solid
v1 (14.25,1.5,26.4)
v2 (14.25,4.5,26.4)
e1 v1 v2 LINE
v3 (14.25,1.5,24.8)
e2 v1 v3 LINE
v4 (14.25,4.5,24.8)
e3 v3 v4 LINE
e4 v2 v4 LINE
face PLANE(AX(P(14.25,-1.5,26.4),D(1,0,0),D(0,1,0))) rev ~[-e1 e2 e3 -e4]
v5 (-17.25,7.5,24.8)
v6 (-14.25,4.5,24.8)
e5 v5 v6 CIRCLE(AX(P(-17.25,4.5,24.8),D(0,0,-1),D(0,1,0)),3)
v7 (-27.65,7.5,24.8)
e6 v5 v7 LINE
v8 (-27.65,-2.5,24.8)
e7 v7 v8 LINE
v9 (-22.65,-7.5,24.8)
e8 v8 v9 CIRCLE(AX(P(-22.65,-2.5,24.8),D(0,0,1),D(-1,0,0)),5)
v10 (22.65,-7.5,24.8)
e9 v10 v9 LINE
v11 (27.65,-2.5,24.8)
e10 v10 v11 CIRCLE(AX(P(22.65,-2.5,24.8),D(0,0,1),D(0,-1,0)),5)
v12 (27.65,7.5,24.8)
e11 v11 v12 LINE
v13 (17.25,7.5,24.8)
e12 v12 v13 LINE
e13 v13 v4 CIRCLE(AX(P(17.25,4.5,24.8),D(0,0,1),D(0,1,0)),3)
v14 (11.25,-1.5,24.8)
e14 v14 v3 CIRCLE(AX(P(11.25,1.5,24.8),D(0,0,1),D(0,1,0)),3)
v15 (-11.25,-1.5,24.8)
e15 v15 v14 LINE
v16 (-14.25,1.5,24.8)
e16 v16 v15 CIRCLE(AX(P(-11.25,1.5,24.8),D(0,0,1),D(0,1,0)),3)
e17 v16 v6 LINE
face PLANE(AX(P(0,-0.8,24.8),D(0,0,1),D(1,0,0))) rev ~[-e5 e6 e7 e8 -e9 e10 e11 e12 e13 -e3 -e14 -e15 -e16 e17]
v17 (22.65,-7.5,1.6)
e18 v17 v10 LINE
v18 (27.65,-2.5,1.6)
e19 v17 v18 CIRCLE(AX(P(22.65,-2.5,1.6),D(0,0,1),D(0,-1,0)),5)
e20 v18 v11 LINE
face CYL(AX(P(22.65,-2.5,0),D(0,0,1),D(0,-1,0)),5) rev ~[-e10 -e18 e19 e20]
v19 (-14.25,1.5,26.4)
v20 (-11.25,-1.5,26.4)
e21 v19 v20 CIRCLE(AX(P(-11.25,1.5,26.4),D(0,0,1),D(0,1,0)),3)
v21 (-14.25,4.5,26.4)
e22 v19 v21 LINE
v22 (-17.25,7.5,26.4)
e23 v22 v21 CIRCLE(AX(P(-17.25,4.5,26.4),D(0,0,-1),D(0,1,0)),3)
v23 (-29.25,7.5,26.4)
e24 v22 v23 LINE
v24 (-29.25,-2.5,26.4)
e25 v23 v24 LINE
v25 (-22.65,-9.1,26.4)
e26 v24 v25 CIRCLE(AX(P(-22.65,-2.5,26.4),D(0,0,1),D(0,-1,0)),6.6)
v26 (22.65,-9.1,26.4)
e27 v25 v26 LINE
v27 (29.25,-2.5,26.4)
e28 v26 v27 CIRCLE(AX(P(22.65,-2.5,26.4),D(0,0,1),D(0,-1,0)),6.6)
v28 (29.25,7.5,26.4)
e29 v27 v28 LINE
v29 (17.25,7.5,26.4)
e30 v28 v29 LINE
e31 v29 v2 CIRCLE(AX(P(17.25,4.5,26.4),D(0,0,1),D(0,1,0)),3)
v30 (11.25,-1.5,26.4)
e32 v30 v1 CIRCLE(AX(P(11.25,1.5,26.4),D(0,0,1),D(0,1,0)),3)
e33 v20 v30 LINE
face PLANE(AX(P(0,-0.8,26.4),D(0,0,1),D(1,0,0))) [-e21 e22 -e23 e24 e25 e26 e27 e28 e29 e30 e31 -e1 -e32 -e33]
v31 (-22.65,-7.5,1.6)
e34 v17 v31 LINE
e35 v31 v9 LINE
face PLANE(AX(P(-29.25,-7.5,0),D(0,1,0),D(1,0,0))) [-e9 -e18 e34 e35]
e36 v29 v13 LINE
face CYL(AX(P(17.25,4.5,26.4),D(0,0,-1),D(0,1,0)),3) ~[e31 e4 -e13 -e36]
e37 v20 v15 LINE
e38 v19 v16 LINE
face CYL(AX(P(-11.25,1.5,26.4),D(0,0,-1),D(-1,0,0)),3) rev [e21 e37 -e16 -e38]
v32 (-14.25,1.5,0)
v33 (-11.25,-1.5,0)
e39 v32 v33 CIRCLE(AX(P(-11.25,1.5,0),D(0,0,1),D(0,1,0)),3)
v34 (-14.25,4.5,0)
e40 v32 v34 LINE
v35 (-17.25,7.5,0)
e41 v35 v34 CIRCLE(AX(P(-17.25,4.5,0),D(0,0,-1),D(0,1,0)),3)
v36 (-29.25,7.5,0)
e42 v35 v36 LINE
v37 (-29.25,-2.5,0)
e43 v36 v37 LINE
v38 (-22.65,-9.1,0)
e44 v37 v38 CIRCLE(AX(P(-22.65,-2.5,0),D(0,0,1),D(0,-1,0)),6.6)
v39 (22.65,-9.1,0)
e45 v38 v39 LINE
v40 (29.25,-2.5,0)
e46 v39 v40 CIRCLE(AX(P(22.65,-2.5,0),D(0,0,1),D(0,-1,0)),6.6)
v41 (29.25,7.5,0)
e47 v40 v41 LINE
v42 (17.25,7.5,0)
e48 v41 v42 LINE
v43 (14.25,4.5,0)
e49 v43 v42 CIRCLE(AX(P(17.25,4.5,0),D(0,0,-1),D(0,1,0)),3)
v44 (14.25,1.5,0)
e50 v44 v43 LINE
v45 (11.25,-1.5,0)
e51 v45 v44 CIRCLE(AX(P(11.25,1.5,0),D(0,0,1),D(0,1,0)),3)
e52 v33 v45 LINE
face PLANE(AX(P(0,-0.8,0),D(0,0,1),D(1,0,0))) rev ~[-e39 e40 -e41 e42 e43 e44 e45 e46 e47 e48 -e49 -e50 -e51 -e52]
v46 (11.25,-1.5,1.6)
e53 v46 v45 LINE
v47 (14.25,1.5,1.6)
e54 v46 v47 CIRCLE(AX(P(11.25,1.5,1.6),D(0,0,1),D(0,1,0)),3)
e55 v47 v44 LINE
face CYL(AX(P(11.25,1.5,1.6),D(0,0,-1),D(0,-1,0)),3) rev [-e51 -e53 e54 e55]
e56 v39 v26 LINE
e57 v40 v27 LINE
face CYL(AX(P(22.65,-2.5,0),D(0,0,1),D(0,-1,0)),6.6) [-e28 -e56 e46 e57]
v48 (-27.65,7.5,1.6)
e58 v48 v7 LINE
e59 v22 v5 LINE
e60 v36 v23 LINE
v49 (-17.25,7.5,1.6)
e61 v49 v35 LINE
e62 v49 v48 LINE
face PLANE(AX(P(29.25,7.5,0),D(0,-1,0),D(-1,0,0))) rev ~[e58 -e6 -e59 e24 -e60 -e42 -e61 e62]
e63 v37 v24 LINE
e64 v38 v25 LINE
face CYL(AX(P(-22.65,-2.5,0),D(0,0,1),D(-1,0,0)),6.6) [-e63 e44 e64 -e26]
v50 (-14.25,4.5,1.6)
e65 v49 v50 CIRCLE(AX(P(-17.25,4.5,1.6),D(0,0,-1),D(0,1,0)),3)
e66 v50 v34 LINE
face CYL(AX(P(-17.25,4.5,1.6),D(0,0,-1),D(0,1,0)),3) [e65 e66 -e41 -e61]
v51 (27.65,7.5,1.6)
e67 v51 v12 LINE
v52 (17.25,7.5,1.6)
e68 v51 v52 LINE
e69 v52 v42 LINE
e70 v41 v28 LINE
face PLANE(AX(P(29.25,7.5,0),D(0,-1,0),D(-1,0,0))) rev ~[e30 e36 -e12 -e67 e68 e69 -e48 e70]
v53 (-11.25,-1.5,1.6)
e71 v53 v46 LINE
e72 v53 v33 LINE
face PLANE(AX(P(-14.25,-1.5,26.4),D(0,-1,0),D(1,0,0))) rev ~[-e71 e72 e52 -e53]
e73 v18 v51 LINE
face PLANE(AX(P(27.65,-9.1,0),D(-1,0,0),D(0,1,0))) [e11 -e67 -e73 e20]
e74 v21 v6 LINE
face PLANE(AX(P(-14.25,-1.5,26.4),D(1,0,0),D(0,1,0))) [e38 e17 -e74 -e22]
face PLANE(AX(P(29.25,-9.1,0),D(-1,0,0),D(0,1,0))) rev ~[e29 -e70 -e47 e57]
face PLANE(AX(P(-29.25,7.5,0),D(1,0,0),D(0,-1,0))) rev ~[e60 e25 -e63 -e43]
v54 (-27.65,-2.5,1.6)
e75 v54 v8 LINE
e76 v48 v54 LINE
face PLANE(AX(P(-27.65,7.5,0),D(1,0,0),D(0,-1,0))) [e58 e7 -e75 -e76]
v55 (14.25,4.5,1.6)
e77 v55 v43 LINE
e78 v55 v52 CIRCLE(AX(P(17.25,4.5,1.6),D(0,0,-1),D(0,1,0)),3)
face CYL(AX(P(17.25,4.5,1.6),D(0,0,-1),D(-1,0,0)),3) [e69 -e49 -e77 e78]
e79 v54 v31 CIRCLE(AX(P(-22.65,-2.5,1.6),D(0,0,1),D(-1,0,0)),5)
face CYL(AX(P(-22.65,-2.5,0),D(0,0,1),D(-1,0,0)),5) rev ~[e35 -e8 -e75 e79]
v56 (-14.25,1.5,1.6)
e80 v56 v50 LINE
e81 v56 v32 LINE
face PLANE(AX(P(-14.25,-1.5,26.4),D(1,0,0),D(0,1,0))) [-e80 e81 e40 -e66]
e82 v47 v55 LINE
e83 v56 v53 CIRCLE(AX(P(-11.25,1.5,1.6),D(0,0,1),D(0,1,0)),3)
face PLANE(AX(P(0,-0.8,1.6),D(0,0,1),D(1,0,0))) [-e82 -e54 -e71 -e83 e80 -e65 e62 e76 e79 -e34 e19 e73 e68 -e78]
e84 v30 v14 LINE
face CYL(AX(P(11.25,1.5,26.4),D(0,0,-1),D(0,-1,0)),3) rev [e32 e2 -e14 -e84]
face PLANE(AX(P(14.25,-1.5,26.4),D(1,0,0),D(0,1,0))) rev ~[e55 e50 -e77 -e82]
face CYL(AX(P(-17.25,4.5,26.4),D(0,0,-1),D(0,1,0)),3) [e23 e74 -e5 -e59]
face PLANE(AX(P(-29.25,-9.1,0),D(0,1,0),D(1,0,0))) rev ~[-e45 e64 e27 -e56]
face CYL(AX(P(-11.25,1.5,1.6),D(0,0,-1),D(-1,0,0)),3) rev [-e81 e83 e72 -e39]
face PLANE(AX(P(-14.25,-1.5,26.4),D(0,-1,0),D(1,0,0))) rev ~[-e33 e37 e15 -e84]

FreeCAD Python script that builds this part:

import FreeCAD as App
import Part
import Sketcher

V = App.Vector


def edges_at(feature, points):
    """Names of the edges that pass closest to the given points."""
    edges = feature.Shape.Edges
    near = lambda p: min(range(len(edges)), key=lambda i: edges[i].distToShape(Part.Vertex(*p))[0])
    return sorted({f"Edge{near(p) + 1}" for p in points})


def faces_at(feature, points):
    """Names of the faces that lie closest to the given points."""
    faces = feature.Shape.Faces
    near = lambda p: min(range(len(faces)), key=lambda i: faces[i].distToShape(Part.Vertex(*p))[0])
    return sorted({f"Face{near(p) + 1}" for p in points})

doc = App.newDocument("Part")
body = doc.addObject("PartDesign::Body", "Body")

sketch1 = body.newObject("Sketcher::SketchObject", "Sketch")
sketch1.AttachmentSupport = (doc.getObject("XY_Plane"), [""])
sketch1.MapMode = "FlatFace"
sketch1.addGeometry(Part.LineSegment(V(29.25, 7.5, 0), V(-29.25, 7.5, 0)), False)
sketch1.addGeometry(Part.LineSegment(V(-29.25, 7.5, 0), V(-29.25, -9.1, 0)), False)
sketch1.addGeometry(Part.LineSegment(V(-29.25, -9.1, 0), V(29.25, -9.1, 0)), False)
sketch1.addGeometry(Part.LineSegment(V(29.25, -9.1, 0), V(29.25, 7.5, 0)), False)
sketch1.addConstraint(Sketcher.Constraint("Coincident", 0, 2, 1, 1))
sketch1.addConstraint(Sketcher.Constraint("Coincident", 1, 2, 2, 1))
sketch1.addConstraint(Sketcher.Constraint("Coincident", 2, 2, 3, 1))
sketch1.addConstraint(Sketcher.Constraint("Coincident", 3, 2, 0, 1))
sketch1.addConstraint(Sketcher.Constraint("Horizontal", 0))
sketch1.addConstraint(Sketcher.Constraint("Vertical", 1))
sketch1.addConstraint(Sketcher.Constraint("Horizontal", 2))
sketch1.addConstraint(Sketcher.Constraint("Vertical", 3))
sketch1.addConstraint(Sketcher.Constraint("DistanceX", 0, 2, 0, 1, 58.5))
sketch1.addConstraint(Sketcher.Constraint("DistanceY", 1, 2, 1, 1, 16.6))
sketch1.addConstraint(Sketcher.Constraint("DistanceY", -1, 1, 0, 2, 7.5))
sketch1.addConstraint(Sketcher.Constraint("DistanceX", 0, 2, -1, 1, 29.25))
pad1 = body.newObject("PartDesign::Pad", "Pad")
pad1.Profile = sketch1
pad1.Length = 26.4
doc.recompute()

fillet = body.newObject("PartDesign::Fillet", "Fillet")
fillet.Base = (pad1, edges_at(pad1, [(29.25, -9.1, 13.2), (-29.25, -9.1, 13.2)]))
fillet.Radius = 6.6
doc.recompute()

thickness = body.newObject("PartDesign::Thickness", "Thickness")
thickness.Base = (fillet, faces_at(fillet, [(0, 7.5, 13.2)]))
thickness.Value = 1.6
thickness.Reversed = True
thickness.Join = "Arc"

sketch2 = body.newObject("Sketcher::SketchObject", "Sketch001")
sketch2.AttachmentSupport = (doc.getObject("XY_Plane"), [""])
sketch2.MapMode = "FlatFace"
sketch2.AttachmentOffset = App.Placement(V(0, 0, 26.4), App.Rotation())
sketch2.addGeometry(Part.LineSegment(V(-14.25, 7.5, 0), V(-14.25, -1.5, 0)), False)
sketch2.addGeometry(Part.LineSegment(V(-14.25, -1.5, 0), V(14.25, -1.5, 0)), False)
sketch2.addGeometry(Part.LineSegment(V(14.25, -1.5, 0), V(14.25, 7.5, 0)), False)
sketch2.addGeometry(Part.LineSegment(V(14.25, 7.5, 0), V(-14.25, 7.5, 0)), False)
sketch2.addConstraint(Sketcher.Constraint("Coincident", 0, 2, 1, 1))
sketch2.addConstraint(Sketcher.Constraint("Coincident", 1, 2, 2, 1))
sketch2.addConstraint(Sketcher.Constraint("Coincident", 2, 2, 3, 1))
sketch2.addConstraint(Sketcher.Constraint("Coincident", 3, 2, 0, 1))
sketch2.addConstraint(Sketcher.Constraint("Vertical", 0))
sketch2.addConstraint(Sketcher.Constraint("Horizontal", 1))
sketch2.addConstraint(Sketcher.Constraint("Vertical", 2))
sketch2.addConstraint(Sketcher.Constraint("Horizontal", 3))
sketch2.addConstraint(Sketcher.Constraint("DistanceY", 0, 2, 0, 1, 9.0))
sketch2.addConstraint(Sketcher.Constraint("DistanceX", 1, 1, 1, 2, 28.5))
sketch2.addConstraint(Sketcher.Constraint("DistanceY", 0, 2, -1, 1, 1.5))
sketch2.addConstraint(Sketcher.Constraint("DistanceX", 0, 2, -1, 1, 14.25))
pocket1 = body.newObject("PartDesign::Pocket", "Pocket")
pocket1.Profile = sketch2
pocket1.Type = "ThroughAll"
doc.recompute()

fillet2 = body.newObject("PartDesign::Fillet", "Fillet001")
fillet2.Base = (pocket1, edges_at(pocket1, [
    (14.25, -1.5, 25.6),
    (14.25, 7.5, 25.6),
    (14.25, 7.5, 0.8),
    (14.25, -1.5, 0.8),
    (-14.25, 7.5, 25.6),
    (-14.25, 7.5, 0.8),
    (-14.25, -1.5, 0.8),
    (-14.25, -1.5, 25.6),
]))
fillet2.Radius = 3

doc.recompute()
